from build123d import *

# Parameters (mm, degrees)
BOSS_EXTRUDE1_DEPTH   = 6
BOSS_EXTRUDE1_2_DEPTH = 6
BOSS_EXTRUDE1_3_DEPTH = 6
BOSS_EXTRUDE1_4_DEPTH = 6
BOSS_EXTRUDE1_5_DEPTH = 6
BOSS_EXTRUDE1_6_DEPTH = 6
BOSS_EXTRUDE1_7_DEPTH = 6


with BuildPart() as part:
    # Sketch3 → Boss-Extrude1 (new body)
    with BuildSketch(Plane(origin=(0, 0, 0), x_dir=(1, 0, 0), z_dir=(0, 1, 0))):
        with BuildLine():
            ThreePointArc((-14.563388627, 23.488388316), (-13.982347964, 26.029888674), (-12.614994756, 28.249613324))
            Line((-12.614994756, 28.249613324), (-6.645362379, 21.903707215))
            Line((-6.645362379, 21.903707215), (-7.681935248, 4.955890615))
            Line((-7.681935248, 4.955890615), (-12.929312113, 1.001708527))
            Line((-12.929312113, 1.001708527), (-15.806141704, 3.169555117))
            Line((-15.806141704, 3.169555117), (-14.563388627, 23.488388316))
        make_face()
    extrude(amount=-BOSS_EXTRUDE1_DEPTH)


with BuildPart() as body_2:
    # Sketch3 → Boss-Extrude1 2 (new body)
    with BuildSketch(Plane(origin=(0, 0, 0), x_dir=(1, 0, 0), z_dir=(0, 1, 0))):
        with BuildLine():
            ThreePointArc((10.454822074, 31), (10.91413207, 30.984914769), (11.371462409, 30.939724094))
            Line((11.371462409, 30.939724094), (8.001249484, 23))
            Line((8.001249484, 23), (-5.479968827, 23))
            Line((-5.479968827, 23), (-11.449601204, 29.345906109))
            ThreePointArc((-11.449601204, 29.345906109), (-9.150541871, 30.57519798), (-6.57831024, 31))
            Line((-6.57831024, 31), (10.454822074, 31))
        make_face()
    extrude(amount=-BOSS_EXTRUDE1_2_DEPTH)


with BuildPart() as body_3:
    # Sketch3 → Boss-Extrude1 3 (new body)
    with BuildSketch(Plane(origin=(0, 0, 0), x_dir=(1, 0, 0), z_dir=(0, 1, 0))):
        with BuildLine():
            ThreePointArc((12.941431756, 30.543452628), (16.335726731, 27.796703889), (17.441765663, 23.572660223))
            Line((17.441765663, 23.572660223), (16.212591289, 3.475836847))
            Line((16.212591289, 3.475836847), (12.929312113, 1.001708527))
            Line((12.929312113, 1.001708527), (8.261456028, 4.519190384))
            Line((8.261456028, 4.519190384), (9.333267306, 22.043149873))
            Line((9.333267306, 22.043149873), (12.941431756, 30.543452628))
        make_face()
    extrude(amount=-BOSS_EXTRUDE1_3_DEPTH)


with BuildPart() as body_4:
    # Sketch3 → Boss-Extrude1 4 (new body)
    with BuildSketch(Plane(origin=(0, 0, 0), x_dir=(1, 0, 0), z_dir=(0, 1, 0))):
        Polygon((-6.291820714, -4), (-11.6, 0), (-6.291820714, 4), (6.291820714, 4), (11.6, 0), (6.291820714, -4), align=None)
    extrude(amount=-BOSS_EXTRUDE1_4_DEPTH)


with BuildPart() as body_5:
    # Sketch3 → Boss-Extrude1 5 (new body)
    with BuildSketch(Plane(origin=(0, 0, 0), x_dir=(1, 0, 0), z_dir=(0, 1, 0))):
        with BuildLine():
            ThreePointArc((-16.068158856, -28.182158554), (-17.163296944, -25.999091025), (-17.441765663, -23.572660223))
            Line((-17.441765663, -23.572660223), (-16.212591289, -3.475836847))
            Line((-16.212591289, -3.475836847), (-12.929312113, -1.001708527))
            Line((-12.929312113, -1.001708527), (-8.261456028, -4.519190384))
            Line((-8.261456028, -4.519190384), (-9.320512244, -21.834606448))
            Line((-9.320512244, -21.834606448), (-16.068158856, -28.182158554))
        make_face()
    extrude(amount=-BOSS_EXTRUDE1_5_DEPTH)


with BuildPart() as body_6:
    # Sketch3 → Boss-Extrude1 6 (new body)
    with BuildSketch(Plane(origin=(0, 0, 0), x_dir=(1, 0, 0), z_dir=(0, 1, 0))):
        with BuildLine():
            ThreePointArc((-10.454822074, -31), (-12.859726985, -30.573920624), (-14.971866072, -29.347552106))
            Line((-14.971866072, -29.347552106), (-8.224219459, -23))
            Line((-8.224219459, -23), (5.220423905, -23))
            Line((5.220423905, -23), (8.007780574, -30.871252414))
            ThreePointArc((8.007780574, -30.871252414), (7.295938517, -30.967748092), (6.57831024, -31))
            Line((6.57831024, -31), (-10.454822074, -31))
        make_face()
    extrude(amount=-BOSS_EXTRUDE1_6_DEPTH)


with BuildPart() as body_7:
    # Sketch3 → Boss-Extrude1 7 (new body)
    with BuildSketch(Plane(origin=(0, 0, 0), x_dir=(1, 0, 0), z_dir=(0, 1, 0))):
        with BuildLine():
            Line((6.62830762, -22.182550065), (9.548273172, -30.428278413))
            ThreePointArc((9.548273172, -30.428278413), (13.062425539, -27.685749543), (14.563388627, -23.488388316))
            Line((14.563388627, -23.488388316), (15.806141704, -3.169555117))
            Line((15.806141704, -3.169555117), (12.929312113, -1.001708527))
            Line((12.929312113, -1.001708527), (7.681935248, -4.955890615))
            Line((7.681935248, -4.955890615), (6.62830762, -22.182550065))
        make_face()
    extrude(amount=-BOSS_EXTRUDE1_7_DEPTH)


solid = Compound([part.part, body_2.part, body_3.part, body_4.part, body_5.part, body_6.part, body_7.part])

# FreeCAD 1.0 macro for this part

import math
import FreeCAD as App
import Part
import Sketcher

V = App.Vector
Q = App.Units.Quantity

doc = App.newDocument("Part")
body = doc.addObject("PartDesign::Body", "Body")

# Sketch on XZ plane
sketch1 = doc.addObject("Sketcher::SketchObject", "Sketch")
body.addObject(sketch1)
sketch1.AttachmentSupport = (doc.XZ_Plane, [""])
sketch1.MapMode = "FlatFace"
sketch1.addGeometry([
    Part.ArcOfCircle(Part.Circle(V(-6.6, -23, 0), V(0, 0, 1), 8), math.radians(-177), math.radians(-139)),  # 0
    Part.LineSegment(V(-14.6, -23.5, 0), V(-15.8, -3.2, 0)),  # 1
    Part.LineSegment(V(-15.8, -3.2, 0), V(-12.9, -1, 0)),  # 2
    Part.LineSegment(V(-12.9, -1, 0), V(-7.7, -5, 0)),  # 3
    Part.LineSegment(V(-7.7, -5, 0), V(-6.6, -21.9, 0)),  # 4
    Part.LineSegment(V(-6.6, -21.9, 0), V(-12.6, -28.2, 0)),  # 5
], False)
sketch1.addConstraint([
    Sketcher.Constraint("Tangent", 0, 1, 1, 1),
    Sketcher.Constraint("Coincident", 1, 2, 2, 1),
    Sketcher.Constraint("Coincident", 2, 2, 3, 1),
    Sketcher.Constraint("Coincident", 3, 2, 4, 1),
    Sketcher.Constraint("Coincident", 4, 2, 5, 1),
    Sketcher.Constraint("Coincident", 5, 2, 0, 2),
    Sketcher.Constraint("Parallel", 1, 4),
    Sketcher.Constraint("Radius", 0, 8.0),
    Sketcher.Constraint("Angle", 2, Q("37 deg")),
    Sketcher.Constraint("Angle", 3, Q("-37 deg")),
    Sketcher.Constraint("DistanceY", 0, 3, -1, 1, 23.0),
    Sketcher.Constraint("Angle", 1, Q("93.5 deg")),
    Sketcher.Constraint("Angle", 5, Q("-133.25 deg")),
    Sketcher.Constraint("DistanceX", 2, 2, 0, 3, 6.351002),
    Sketcher.Constraint("DistanceY", 4, 2, 2, 2, 20.901999),
    Sketcher.Constraint("Distance", 2, 3.602181),
    Sketcher.Constraint("DistanceX", 0, 3, -1, 1, 6.57831),
    Sketcher.Constraint("DistanceY", 3, 2, -1, 1, 4.955891),
])
pad1 = doc.addObject("PartDesign::Pad", "Pad")
body.addObject(pad1)
pad1.Profile = sketch1
pad1.Length = 6
body2 = doc.addObject("PartDesign::Body", "Body001")

# Sketch on XZ plane
sketch2 = doc.addObject("Sketcher::SketchObject", "Sketch001")
body2.addObject(sketch2)
sketch2.AttachmentSupport = (doc.getObject("XZ_Plane001"), [""])
sketch2.MapMode = "FlatFace"
sketch2.addGeometry([
    Part.ArcOfCircle(Part.Circle(V(10.5, -24, 0), V(0, 0, 1), 7), math.radians(-90), math.radians(-82.48)),  # 0
    Part.LineSegment(V(10.5, -31, 0), V(-6.6, -31, 0)),  # 1
    Part.ArcOfCircle(Part.Circle(V(-6.6, -23, 0), V(0, 0, 1), 8), math.radians(-128), math.radians(-90)),  # 2
    Part.LineSegment(V(-11.4, -29.3, 0), V(-5.5, -23, 0)),  # 3
    Part.LineSegment(V(-5.5, -23, 0), V(8, -23, 0)),  # 4
    Part.LineSegment(V(8, -23, 0), V(11.4, -30.9, 0)),  # 5
], False)
sketch2.addConstraint([
    Sketcher.Constraint("Tangent", 0, 1, 1, 1),
    Sketcher.Constraint("Tangent", 1, 2, 2, 2),
    Sketcher.Constraint("Coincident", 2, 1, 3, 1),
    Sketcher.Constraint("Coincident", 3, 2, 4, 1),
    Sketcher.Constraint("Coincident", 4, 2, 5, 1),
    Sketcher.Constraint("Coincident", 5, 2, 0, 2),
    Sketcher.Constraint("Horizontal", 1),
    Sketcher.Constraint("Horizontal", 4),
    Sketcher.Constraint("Horizontal", 2, 3, 3, 2),
    Sketcher.Constraint("Radius", 0, 7.0),
    Sketcher.Constraint("Radius", 2, 8.0),
    Sketcher.Constraint("Angle", 5, Q("-67 deg")),
    Sketcher.Constraint("DistanceY", 0, 3, -1, 1, 24.0),
    Sketcher.Constraint("Angle", 3, Q("46.75 deg")),
    Sketcher.Constraint("Distance", 5, 8.625402),
    Sketcher.Constraint("DistanceX", 4, 1, 4, 2, 13.481218),
    Sketcher.Constraint("DistanceX", 2, 1, -1, 1, 11.449601),
    Sketcher.Constraint("DistanceX", 1, 2, 1, 1, 17.033132),
])
pad2 = doc.addObject("PartDesign::Pad", "Pad001")
body2.addObject(pad2)
pad2.Profile = sketch2
pad2.Length = 6
body3 = doc.addObject("PartDesign::Body", "Body002")

# Sketch on XZ plane
sketch3 = doc.addObject("Sketcher::SketchObject", "Sketch002")
body3.addObject(sketch3)
sketch3.AttachmentSupport = (doc.getObject("XZ_Plane002"), [""])
sketch3.MapMode = "FlatFace"
sketch3.addGeometry([
    Part.ArcOfCircle(Part.Circle(V(10.5, -24, 0), V(0, 0, 1), 7), math.radians(-69), math.radians(4)),  # 0
    Part.LineSegment(V(12.9, -30.5, 0), V(9.3, -22, 0)),  # 1
    Part.LineSegment(V(9.3, -22, 0), V(8.3, -4.5, 0)),  # 2
    Part.LineSegment(V(8.3, -4.5, 0), V(12.9, -1, 0)),  # 3
    Part.LineSegment(V(12.9, -1, 0), V(16.2, -3.5, 0)),  # 4
    Part.LineSegment(V(16.2, -3.5, 0), V(17.4, -23.6, 0)),  # 5
], False)
sketch3.addConstraint([
    Sketcher.Constraint("Coincident", 0, 1, 1, 1),
    Sketcher.Constraint("Coincident", 1, 2, 2, 1),
    Sketcher.Constraint("Coincident", 2, 2, 3, 1),
    Sketcher.Constraint("Coincident", 3, 2, 4, 1),
    Sketcher.Constraint("Coincident", 4, 2, 5, 1),
    Sketcher.Constraint("Tangent", 5, 2, 0, 2),
    Sketcher.Constraint("Parallel", 2, 5),
    Sketcher.Constraint("Radius", 0, 7.0),
    Sketcher.Constraint("Angle", 1, Q("113 deg")),
    Sketcher.Constraint("Angle", 3, Q("37 deg")),
    Sketcher.Constraint("Angle", 4, Q("-37 deg")),
    Sketcher.Constraint("DistanceY", 0, 3, -1, 1, 24.0),
    Sketcher.Constraint("Angle", 2, Q("93.5 deg")),
    Sketcher.Constraint("DistanceX", 1, 2, 5, 2, 8.108498),
    Sketcher.Constraint("Distance", 3, 5.844789),
    Sketcher.Constraint("Distance", 4, 4.111111),
    Sketcher.Constraint("Distance", 5, 20.134378),
    Sketcher.Constraint("DistanceX", -1, 1, 0, 1, 12.941432),
])
pad3 = doc.addObject("PartDesign::Pad", "Pad002")
body3.addObject(pad3)
pad3.Profile = sketch3
pad3.Length = 6
body4 = doc.addObject("PartDesign::Body", "Body003")

# Sketch on XZ plane
sketch4 = doc.addObject("Sketcher::SketchObject", "Sketch003")
body4.addObject(sketch4)
sketch4.AttachmentSupport = (doc.getObject("XZ_Plane003"), [""])
sketch4.MapMode = "FlatFace"
sketch4.addGeometry([
    Part.LineSegment(V(-12, 0, 0), V(-6, 4, 0)),  # 0
    Part.LineSegment(V(-6, 4, 0), V(6, 4, 0)),  # 1
    Part.LineSegment(V(6, 4, 0), V(12, 0, 0)),  # 2
    Part.LineSegment(V(12, 0, 0), V(6, -4, 0)),  # 3
    Part.LineSegment(V(6, -4, 0), V(-6, -4, 0)),  # 4
    Part.LineSegment(V(-6, -4, 0), V(-12, 0, 0)),  # 5
], False)
sketch4.addConstraint([
    Sketcher.Constraint("Coincident", 0, 2, 1, 1),
    Sketcher.Constraint("Coincident", 1, 2, 2, 1),
    Sketcher.Constraint("Coincident", 2, 2, 3, 1),
    Sketcher.Constraint("Coincident", 3, 2, 4, 1),
    Sketcher.Constraint("Coincident", 4, 2, 5, 1),
    Sketcher.Constraint("Coincident", 5, 2, 0, 1),
    Sketcher.Constraint("Horizontal", 1),
    Sketcher.Constraint("Horizontal", 4),
    Sketcher.Constraint("Symmetric", 0, 2, 3, 2, -1, 1),
    Sketcher.Constraint("Symmetric", 2, 2, 5, 2, -1, 1),
    Sketcher.Constraint("PointOnObject", 2, 2, -1),
    Sketcher.Constraint("Parallel", 2, 5),
    Sketcher.Constraint("Vertical", 1, 2, 3, 2),
    Sketcher.Constraint("Angle", 0, Q("37 deg")),
    Sketcher.Constraint("DistanceY", -1, 1, 0, 2, 4.0),
    Sketcher.Constraint("DistanceX", -1, 1, 2, 2, 11.6),
])
pad4 = doc.addObject("PartDesign::Pad", "Pad003")
body4.addObject(pad4)
pad4.Profile = sketch4
pad4.Length = 6
body5 = doc.addObject("PartDesign::Body", "Body004")

# Sketch on XZ plane
sketch5 = doc.addObject("Sketcher::SketchObject", "Sketch004")
body5.addObject(sketch5)
sketch5.AttachmentSupport = (doc.getObject("XZ_Plane004"), [""])
sketch5.MapMode = "FlatFace"
sketch5.addGeometry([
    Part.ArcOfCircle(Part.Circle(V(-10.5, 24, 0), V(0, 0, 1), 7), math.radians(143), math.radians(184)),  # 0
    Part.LineSegment(V(-16.1, 28.2, 0), V(-9.3, 21.8, 0)),  # 1
    Part.LineSegment(V(-9.3, 21.8, 0), V(-8.3, 4.5, 0)),  # 2
    Part.LineSegment(V(-8.3, 4.5, 0), V(-12.9, 1, 0)),  # 3
    Part.LineSegment(V(-12.9, 1, 0), V(-16.2, 3.5, 0)),  # 4
    Part.LineSegment(V(-16.2, 3.5, 0), V(-17.4, 23.6, 0)),  # 5
], False)
sketch5.addConstraint([
    Sketcher.Constraint("Coincident", 0, 1, 1, 1),
    Sketcher.Constraint("Coincident", 1, 2, 2, 1),
    Sketcher.Constraint("Coincident", 2, 2, 3, 1),
    Sketcher.Constraint("Coincident", 3, 2, 4, 1),
    Sketcher.Constraint("Coincident", 4, 2, 5, 1),
    Sketcher.Constraint("Tangent", 5, 2, 0, 2),
    Sketcher.Constraint("Parallel", 2, 5),
    Sketcher.Constraint("Radius", 0, 7.0),
    Sketcher.Constraint("Angle", 3, Q("-143 deg")),
    Sketcher.Constraint("Angle", 4, Q("143 deg")),
    Sketcher.Constraint("DistanceY", -1, 1, 0, 3, 24.0),
    Sketcher.Constraint("Angle", 2, Q("-86.5 deg")),
    Sketcher.Constraint("Angle", 1, Q("-43.25 deg")),
    Sketcher.Constraint("DistanceX", 3, 2, 1, 2, 3.6088),
    Sketcher.Constraint("DistanceY", 5, 2, 0, 1, 4.609498),
    Sketcher.Constraint("Distance", 3, 5.844789),
    Sketcher.Constraint("Distance", 4, 4.111111),
    Sketcher.Constraint("DistanceX", 0, 1, -1, 1, 16.068159),
])
pad5 = doc.addObject("PartDesign::Pad", "Pad004")
body5.addObject(pad5)
pad5.Profile = sketch5
pad5.Length = 6
body6 = doc.addObject("PartDesign::Body", "Body005")

# Sketch on XZ plane
sketch6 = doc.addObject("Sketcher::SketchObject", "Sketch005")
body6.addObject(sketch6)
sketch6.AttachmentSupport = (doc.getObject("XZ_Plane005"), [""])
sketch6.MapMode = "FlatFace"
sketch6.addGeometry([
    Part.ArcOfCircle(Part.Circle(V(-10.5, 24, 0), V(0, 0, 1), 7), math.radians(90), math.radians(130)),  # 0
    Part.LineSegment(V(-10.5, 31, 0), V(6.6, 31, 0)),  # 1
    Part.ArcOfCircle(Part.Circle(V(6.6, 23, 0), V(0, 0, 1), 8), math.radians(79.71), math.radians(90)),  # 2
    Part.LineSegment(V(8, 30.9, 0), V(5.2, 23, 0)),  # 3
    Part.LineSegment(V(5.2, 23, 0), V(-8.2, 23, 0)),  # 4
    Part.LineSegment(V(-8.2, 23, 0), V(-15, 29.3, 0)),  # 5
], False)
sketch6.addConstraint([
    Sketcher.Constraint("Tangent", 0, 1, 1, 1),
    Sketcher.Constraint("Tangent", 1, 2, 2, 2),
    Sketcher.Constraint("Coincident", 2, 1, 3, 1),
    Sketcher.Constraint("Coincident", 3, 2, 4, 1),
    Sketcher.Constraint("Coincident", 4, 2, 5, 1),
    Sketcher.Constraint("Coincident", 5, 2, 0, 2),
    Sketcher.Constraint("Horizontal", 1),
    Sketcher.Constraint("Horizontal", 4),
    Sketcher.Constraint("Horizontal", 2, 3, 3, 2),
    Sketcher.Constraint("Radius", 0, 7.0),
    Sketcher.Constraint("Radius", 2, 8.0),
    Sketcher.Constraint("DistanceY", -1, 1, 0, 3, 24.0),
    Sketcher.Constraint("Angle", 3, Q("-109.5 deg")),
    Sketcher.Constraint("Angle", 5, Q("136.75 deg")),
    Sketcher.Constraint("DistanceX", 1, 1, 1, 2, 17.033132),
    Sketcher.Constraint("DistanceX", 4, 2, 4, 1, 13.444643),
    Sketcher.Constraint("DistanceX", -1, 1, 2, 3, 6.57831),
    Sketcher.Constraint("DistanceX", -1, 1, 2, 1, 8.007781),
])
pad6 = doc.addObject("PartDesign::Pad", "Pad005")
body6.addObject(pad6)
pad6.Profile = sketch6
pad6.Length = 6
body7 = doc.addObject("PartDesign::Body", "Body006")

# Sketch on XZ plane
sketch7 = doc.addObject("Sketcher::SketchObject", "Sketch006")
body7.addObject(sketch7)
sketch7.AttachmentSupport = (doc.getObject("XZ_Plane006"), [""])
sketch7.MapMode = "FlatFace"
sketch7.addGeometry([
    Part.LineSegment(V(6.6, 22.2, 0), V(9.5, 30.4, 0)),  # 0
    Part.ArcOfCircle(Part.Circle(V(6.6, 23, 0), V(0, 0, 1), 8), math.radians(4), math.radians(68)),  # 1
    Part.LineSegment(V(14.6, 23.5, 0), V(15.8, 3.2, 0)),  # 2
    Part.LineSegment(V(15.8, 3.2, 0), V(12.9, 1, 0)),  # 3
    Part.LineSegment(V(12.9, 1, 0), V(7.7, 5, 0)),  # 4
    Part.LineSegment(V(7.7, 5, 0), V(6.6, 22.2, 0)),  # 5
], False)
sketch7.addConstraint([
    Sketcher.Constraint("Coincident", 0, 2, 1, 2),
    Sketcher.Constraint("Tangent", 1, 1, 2, 1),
    Sketcher.Constraint("Coincident", 2, 2, 3, 1),
    Sketcher.Constraint("Coincident", 3, 2, 4, 1),
    Sketcher.Constraint("Coincident", 4, 2, 5, 1),
    Sketcher.Constraint("Coincident", 5, 2, 0, 1),
    Sketcher.Constraint("Parallel", 2, 5),
    Sketcher.Constraint("Radius", 1, 8.0),
    Sketcher.Constraint("Angle", 3, Q("-143 deg")),
    Sketcher.Constraint("Angle", 4, Q("143 deg")),
    Sketcher.Constraint("DistanceY", -1, 1, 1, 3, 23.0),
    Sketcher.Constraint("Angle", 0, Q("70.5 deg")),
    Sketcher.Constraint("Angle", 2, Q("-86.5 deg")),
    Sketcher.Constraint("DistanceX", 1, 3, 3, 2, 6.351002),
    Sketcher.Constraint("Distance", 0, 8.74747),
    Sketcher.Constraint("Distance", 3, 3.602181),
    Sketcher.Constraint("Distance", 5, 17.258851),
    Sketcher.Constraint("DistanceX", -1, 1, 1, 3, 6.57831),
])
pad7 = doc.addObject("PartDesign::Pad", "Pad006")
body7.addObject(pad7)
pad7.Profile = sketch7
pad7.Length = 6

doc.recompute()
